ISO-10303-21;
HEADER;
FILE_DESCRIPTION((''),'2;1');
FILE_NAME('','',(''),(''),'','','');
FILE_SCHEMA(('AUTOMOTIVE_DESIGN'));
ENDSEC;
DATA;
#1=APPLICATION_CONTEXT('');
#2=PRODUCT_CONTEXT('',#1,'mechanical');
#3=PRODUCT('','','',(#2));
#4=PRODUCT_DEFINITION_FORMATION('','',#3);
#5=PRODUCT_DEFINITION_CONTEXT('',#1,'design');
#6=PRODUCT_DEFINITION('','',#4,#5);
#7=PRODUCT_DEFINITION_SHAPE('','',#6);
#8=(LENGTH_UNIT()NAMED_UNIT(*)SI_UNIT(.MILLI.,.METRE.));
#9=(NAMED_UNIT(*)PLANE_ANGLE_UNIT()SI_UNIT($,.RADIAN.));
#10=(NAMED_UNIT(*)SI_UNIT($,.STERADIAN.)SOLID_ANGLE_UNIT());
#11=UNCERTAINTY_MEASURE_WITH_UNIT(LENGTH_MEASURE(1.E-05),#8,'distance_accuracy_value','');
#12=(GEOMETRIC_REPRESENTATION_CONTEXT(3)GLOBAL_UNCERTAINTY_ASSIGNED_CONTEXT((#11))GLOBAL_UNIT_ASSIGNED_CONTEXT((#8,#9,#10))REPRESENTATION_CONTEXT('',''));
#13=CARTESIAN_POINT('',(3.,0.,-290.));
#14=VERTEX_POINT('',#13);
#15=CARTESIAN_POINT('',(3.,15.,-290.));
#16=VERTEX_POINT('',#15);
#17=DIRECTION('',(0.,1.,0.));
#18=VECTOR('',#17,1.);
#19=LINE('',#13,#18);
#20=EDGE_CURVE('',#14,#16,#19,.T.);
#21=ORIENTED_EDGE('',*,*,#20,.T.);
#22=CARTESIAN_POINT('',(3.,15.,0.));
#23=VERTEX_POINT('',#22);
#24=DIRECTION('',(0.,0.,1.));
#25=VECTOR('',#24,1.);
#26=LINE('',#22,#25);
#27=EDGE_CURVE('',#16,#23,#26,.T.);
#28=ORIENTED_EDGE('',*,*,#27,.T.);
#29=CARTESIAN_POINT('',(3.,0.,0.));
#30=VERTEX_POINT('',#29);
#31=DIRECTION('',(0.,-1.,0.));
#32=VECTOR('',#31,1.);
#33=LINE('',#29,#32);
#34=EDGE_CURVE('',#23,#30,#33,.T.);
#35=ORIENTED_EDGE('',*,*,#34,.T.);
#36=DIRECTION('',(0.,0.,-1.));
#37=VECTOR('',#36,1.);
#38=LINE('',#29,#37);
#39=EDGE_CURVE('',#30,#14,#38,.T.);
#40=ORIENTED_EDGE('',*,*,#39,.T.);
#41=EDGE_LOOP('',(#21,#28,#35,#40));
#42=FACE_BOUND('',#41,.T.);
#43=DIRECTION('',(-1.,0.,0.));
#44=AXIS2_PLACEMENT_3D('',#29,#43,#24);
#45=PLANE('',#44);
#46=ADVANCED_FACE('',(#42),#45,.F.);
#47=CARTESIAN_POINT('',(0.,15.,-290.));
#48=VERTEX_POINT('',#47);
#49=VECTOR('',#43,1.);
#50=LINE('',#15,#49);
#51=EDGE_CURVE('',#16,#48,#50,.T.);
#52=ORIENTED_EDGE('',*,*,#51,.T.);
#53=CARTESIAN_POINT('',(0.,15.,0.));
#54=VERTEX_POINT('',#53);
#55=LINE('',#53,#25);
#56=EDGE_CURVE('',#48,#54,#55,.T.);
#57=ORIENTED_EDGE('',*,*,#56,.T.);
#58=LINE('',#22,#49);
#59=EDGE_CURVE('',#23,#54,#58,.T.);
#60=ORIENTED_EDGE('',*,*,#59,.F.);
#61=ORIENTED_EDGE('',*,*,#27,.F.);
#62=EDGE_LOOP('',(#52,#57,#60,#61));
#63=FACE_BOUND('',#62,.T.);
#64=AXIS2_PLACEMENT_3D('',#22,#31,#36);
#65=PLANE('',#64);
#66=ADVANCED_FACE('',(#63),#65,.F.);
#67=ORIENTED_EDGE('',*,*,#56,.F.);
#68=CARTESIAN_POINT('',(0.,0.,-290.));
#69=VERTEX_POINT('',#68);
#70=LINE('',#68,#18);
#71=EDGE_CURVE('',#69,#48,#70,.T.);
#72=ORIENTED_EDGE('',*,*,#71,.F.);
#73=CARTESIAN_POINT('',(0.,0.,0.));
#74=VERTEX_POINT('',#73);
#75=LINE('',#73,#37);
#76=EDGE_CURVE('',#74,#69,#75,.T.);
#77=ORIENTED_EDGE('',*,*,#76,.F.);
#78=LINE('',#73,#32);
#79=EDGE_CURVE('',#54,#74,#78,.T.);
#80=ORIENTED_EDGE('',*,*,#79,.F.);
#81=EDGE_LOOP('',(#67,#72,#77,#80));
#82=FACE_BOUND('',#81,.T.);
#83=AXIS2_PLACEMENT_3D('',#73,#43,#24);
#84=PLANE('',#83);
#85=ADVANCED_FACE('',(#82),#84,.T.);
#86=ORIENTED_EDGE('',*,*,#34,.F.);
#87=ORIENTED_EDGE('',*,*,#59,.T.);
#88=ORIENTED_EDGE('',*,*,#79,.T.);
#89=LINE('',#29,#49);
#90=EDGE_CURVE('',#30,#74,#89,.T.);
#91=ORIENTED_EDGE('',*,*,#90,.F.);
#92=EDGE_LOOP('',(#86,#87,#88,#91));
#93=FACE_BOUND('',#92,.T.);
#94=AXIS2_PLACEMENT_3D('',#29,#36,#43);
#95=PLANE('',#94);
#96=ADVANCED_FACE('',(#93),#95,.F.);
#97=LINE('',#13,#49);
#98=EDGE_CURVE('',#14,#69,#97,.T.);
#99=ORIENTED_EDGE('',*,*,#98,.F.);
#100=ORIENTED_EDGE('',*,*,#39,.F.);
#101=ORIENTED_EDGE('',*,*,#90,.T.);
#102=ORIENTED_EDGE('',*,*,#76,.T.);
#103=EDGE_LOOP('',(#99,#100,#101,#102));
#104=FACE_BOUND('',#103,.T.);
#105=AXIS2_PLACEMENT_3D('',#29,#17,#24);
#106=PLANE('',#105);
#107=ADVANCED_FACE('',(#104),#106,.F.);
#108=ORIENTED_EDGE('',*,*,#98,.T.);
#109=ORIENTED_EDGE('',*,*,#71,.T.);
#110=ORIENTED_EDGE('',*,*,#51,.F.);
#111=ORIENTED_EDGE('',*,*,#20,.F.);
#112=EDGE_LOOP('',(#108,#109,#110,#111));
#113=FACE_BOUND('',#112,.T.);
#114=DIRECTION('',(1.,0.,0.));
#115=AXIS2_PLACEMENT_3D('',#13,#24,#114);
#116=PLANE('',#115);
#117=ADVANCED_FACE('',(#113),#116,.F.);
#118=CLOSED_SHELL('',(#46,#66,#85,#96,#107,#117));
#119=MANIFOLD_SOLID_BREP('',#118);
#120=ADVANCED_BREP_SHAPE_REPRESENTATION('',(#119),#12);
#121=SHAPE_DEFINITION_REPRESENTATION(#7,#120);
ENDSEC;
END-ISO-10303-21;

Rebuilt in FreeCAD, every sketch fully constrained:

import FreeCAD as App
import Part
import Sketcher

V = App.Vector
Q = App.Units.Quantity


def add_polygon(sketch, points):
    """Adds a closed chain of lines whose ends are joined by coincident constraints."""
    first, n = sketch.GeometryCount, len(points)
    for a, b in zip(points, points[1:] + points[:1]):
        sketch.addGeometry(Part.LineSegment(App.Vector(*a, 0), App.Vector(*b, 0)), False)
    for i in range(n):
        sketch.addConstraint(Sketcher.Constraint("Coincident", first + i, 2, first + (i + 1) % n, 1))

doc = App.newDocument("Part")
body = doc.addObject("PartDesign::Body", "Body")

sketch1 = doc.addObject("Sketcher::SketchObject", "Sketch")
body.addObject(sketch1)
sketch1.AttachmentSupport = (doc.YZ_Plane, [""])
sketch1.MapMode = "FlatFace"
add_polygon(sketch1, [(15, 0), (0, 0), (0, -290), (15, -290)])
sketch1.addConstraint(Sketcher.Constraint("Horizontal", 0))
sketch1.addConstraint(Sketcher.Constraint("Vertical", 1))
sketch1.addConstraint(Sketcher.Constraint("Horizontal", 2))
sketch1.addConstraint(Sketcher.Constraint("Vertical", 3))
sketch1.addConstraint(Sketcher.Constraint("Coincident", 0, 2, -1, 1))
sketch1.addConstraint(Sketcher.Constraint("DistanceX", 0, 2, 0, 1, Q("15 mm")))
sketch1.addConstraint(Sketcher.Constraint("DistanceY", 1, 2, 1, 1, Q("290 mm")))
pad1 = doc.addObject("PartDesign::Pad", "Pad")
body.addObject(pad1)
pad1.Profile = sketch1
pad1.Length = 3

doc.recompute()
